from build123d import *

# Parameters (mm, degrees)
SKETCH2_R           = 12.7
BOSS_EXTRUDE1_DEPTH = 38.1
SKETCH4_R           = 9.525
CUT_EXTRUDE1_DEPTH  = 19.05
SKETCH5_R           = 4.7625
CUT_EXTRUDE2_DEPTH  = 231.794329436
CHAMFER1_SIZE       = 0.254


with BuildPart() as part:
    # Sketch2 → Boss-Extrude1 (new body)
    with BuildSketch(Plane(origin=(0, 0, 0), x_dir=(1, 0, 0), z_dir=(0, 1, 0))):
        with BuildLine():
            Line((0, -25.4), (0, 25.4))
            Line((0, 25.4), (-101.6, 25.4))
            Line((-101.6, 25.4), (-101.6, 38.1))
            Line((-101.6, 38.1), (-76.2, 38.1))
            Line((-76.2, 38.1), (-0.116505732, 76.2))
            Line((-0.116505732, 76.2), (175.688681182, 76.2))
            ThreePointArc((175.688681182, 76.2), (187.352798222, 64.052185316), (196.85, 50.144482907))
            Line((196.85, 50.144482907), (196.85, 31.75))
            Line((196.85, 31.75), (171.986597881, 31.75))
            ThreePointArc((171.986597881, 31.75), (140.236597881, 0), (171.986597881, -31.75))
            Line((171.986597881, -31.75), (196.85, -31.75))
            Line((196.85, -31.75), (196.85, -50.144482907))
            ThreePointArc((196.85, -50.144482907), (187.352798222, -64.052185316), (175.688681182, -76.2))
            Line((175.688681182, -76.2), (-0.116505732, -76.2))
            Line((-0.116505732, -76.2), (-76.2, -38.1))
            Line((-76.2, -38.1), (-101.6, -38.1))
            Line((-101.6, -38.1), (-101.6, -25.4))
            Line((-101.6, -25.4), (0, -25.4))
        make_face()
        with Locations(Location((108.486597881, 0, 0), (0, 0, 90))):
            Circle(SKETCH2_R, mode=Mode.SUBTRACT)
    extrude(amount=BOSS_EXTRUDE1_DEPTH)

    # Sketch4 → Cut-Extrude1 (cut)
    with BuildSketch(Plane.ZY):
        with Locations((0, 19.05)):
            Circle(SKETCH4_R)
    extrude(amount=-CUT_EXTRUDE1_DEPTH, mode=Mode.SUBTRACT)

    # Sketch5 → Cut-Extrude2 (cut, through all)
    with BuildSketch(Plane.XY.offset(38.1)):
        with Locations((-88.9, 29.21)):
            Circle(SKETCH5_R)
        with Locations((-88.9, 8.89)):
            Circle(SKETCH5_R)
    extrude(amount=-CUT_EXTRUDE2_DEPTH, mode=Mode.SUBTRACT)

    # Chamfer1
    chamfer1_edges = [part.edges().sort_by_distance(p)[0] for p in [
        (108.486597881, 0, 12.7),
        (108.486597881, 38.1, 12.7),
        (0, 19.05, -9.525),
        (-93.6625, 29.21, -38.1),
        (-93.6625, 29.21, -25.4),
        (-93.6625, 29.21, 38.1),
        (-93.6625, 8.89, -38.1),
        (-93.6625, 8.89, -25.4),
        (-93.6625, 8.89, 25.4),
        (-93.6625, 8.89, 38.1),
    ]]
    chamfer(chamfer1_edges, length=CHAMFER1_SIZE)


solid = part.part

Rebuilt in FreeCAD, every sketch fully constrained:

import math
import FreeCAD as App
import Part
import Sketcher

V = App.Vector
Q = App.Units.Quantity


def edges_at(feature, points):
    """Names of the edges that pass closest to the given points."""
    edges = feature.Shape.Edges
    near = lambda p: min(range(len(edges)), key=lambda i: edges[i].distToShape(Part.Vertex(*p))[0])
    return sorted({f"Edge{near(p) + 1}" for p in points})

doc = App.newDocument("Part")
body = doc.addObject("PartDesign::Body", "Body")

sketch1 = body.newObject("Sketcher::SketchObject", "Sketch")
sketch1.AttachmentSupport = (doc.getObject("XZ_Plane"), [""])
sketch1.MapMode = "FlatFace"
sketch1.addGeometry([
    Part.LineSegment(V(0, -25.4, 0), V(0, 25.4, 0)),
    Part.LineSegment(V(0, 25.4, 0), V(-101.6, 25.4, 0)),
    Part.LineSegment(V(-101.6, 25.4, 0), V(-101.6, 38.1, 0)),
    Part.LineSegment(V(-101.6, 38.1, 0), V(-76.2, 38.1, 0)),
    Part.LineSegment(V(-76.2, 38.1, 0), V(-0.116506, 76.2, 0)),
    Part.LineSegment(V(-0.116506, 76.2, 0), V(175.688681, 76.2, 0)),
    Part.ArcOfCircle(Part.Circle(V(108.486598, 0, 0), V(0, 0, 1), 101.6), math.radians(29.574053), math.radians(48.590378)),
    Part.LineSegment(V(196.85, 50.144483, 0), V(196.85, 31.75, 0)),
    Part.LineSegment(V(196.85, 31.75, 0), V(171.986598, 31.75, 0)),
    Part.ArcOfCircle(Part.Circle(V(171.986598, 0, 0), V(0, 0, 1), 31.75), math.radians(90), math.radians(270)),
    Part.LineSegment(V(171.986598, -31.75, 0), V(196.85, -31.75, 0)),
    Part.LineSegment(V(196.85, -31.75, 0), V(196.85, -50.144483, 0)),
    Part.ArcOfCircle(Part.Circle(V(108.486598, 0, 0), V(0, 0, 1), 101.6), math.radians(-48.590378), math.radians(-29.574053)),
    Part.LineSegment(V(175.688681, -76.2, 0), V(-0.116506, -76.2, 0)),
    Part.LineSegment(V(-0.116506, -76.2, 0), V(-76.2, -38.1, 0)),
    Part.LineSegment(V(-76.2, -38.1, 0), V(-101.6, -38.1, 0)),
    Part.LineSegment(V(-101.6, -38.1, 0), V(-101.6, -25.4, 0)),
    Part.LineSegment(V(-101.6, -25.4, 0), V(0, -25.4, 0)),
    Part.Circle(V(108.486598, 0, 0), V(0, 0, 1), 12.7),
], False)
sketch1.addConstraint([
    Sketcher.Constraint("Coincident", 0, 2, 1, 1),
    Sketcher.Constraint("Coincident", 1, 2, 2, 1),
    Sketcher.Constraint("Coincident", 2, 2, 3, 1),
    Sketcher.Constraint("Coincident", 3, 2, 4, 1),
    Sketcher.Constraint("Coincident", 4, 2, 5, 1),
    Sketcher.Constraint("Coincident", 5, 2, 6, 2),
    Sketcher.Constraint("Coincident", 6, 1, 7, 1),
    Sketcher.Constraint("Coincident", 7, 2, 8, 1),
    Sketcher.Constraint("Tangent", 8, 2, 9, 1),
    Sketcher.Constraint("Tangent", 9, 2, 10, 1),
    Sketcher.Constraint("Coincident", 10, 2, 11, 1),
    Sketcher.Constraint("Coincident", 11, 2, 12, 2),
    Sketcher.Constraint("Coincident", 12, 1, 13, 1),
    Sketcher.Constraint("Coincident", 13, 2, 14, 1),
    Sketcher.Constraint("Coincident", 14, 2, 15, 1),
    Sketcher.Constraint("Coincident", 15, 2, 16, 1),
    Sketcher.Constraint("Coincident", 16, 2, 17, 1),
    Sketcher.Constraint("Coincident", 17, 2, 0, 1),
    Sketcher.Constraint("Vertical", 0),
    Sketcher.Constraint("Horizontal", 1),
    Sketcher.Constraint("Vertical", 2),
    Sketcher.Constraint("Horizontal", 3),
    Sketcher.Constraint("Horizontal", 5),
    Sketcher.Constraint("Vertical", 7),
    Sketcher.Constraint("Horizontal", 8),
    Sketcher.Constraint("Horizontal", 10),
    Sketcher.Constraint("Vertical", 11),
    Sketcher.Constraint("Horizontal", 13),
    Sketcher.Constraint("Horizontal", 15),
    Sketcher.Constraint("Vertical", 16),
    Sketcher.Constraint("Horizontal", 17),
    Sketcher.Constraint("Coincident", 12, 3, 6, 3),
    Sketcher.Constraint("Coincident", 18, 3, 6, 3),
    Sketcher.Constraint("Equal", 6, 12),
    Sketcher.Constraint("Symmetric", 0, 2, 17, 2, -1, 1),
    Sketcher.Constraint("Symmetric", 7, 2, 10, 2, -1),
    Sketcher.Constraint("Symmetric", 5, 2, 12, 1, -1),
    Sketcher.Constraint("Symmetric", 3, 2, 14, 2, -1),
    Sketcher.Constraint("Vertical", 4, 2, 13, 2),
    Sketcher.Constraint("Vertical", 2, 2, 15, 2),
    Sketcher.Constraint("Diameter", 18, Q("1 in")),
    Sketcher.Constraint("Radius", 6, Q("4 in")),
    Sketcher.Constraint("DistanceX", 1, 2, 1, 1, Q("4 in")),
    Sketcher.Constraint("DistanceX", 3, 1, 3, 2, Q("1 in")),
    Sketcher.Constraint("DistanceY", 0, 1, 0, 2, Q("2 in")),
    Sketcher.Constraint("Radius", 9, Q("1.25 in")),
    Sketcher.Constraint("DistanceY", 2, 1, 2, 2, Q("0.5 in")),
    Sketcher.Constraint("DistanceY", -1, 1, 4, 2, Q("3 in")),
    Sketcher.Constraint("DistanceX", 6, 3, 9, 3, Q("2.5 in")),
    Sketcher.Constraint("Distance", 4, Q("3.35 in")),
    Sketcher.Constraint("DistanceX", -1, 1, 6, 1, Q("7.75 in")),
    Sketcher.Constraint("DistanceX", 5, 1, 5, 2, 175.805187),
])
pad1 = body.newObject("PartDesign::Pad", "Pad")
pad1.Profile = sketch1
pad1.Length = Q("1.5 in")
pad1.Reversed = True

sketch2 = body.newObject("Sketcher::SketchObject", "Sketch001")
sketch2.AttachmentSupport = (doc.getObject("YZ_Plane"), [""])
sketch2.MapMode = "FlatFace"
sketch2.addGeometry(Part.Circle(V(19.05, 0, 0), V(0, 0, 1), 9.525), False)
sketch2.addConstraint([
    Sketcher.Constraint("PointOnObject", 0, 3, -1),
    Sketcher.Constraint("Diameter", 0, Q("0.75 in")),
    Sketcher.Constraint("DistanceX", -1, 1, 0, 3, Q("0.75 in")),
])
pocket1 = body.newObject("PartDesign::Pocket", "Pocket")
pocket1.Profile = sketch2
pocket1.Length = Q("0.75 in")
pocket1.Reversed = True

sketch3 = body.newObject("Sketcher::SketchObject", "Sketch002")
sketch3.AttachmentSupport = (doc.getObject("XY_Plane"), [""])
sketch3.MapMode = "FlatFace"
sketch3.AttachmentOffset = App.Placement(V(0, 0, 1.5 * 25.4), App.Rotation())
sketch3.addGeometry([
    Part.Circle(V(-88.9, 29.21, 0), V(0, 0, 1), 4.7625),
    Part.Circle(V(-88.9, 8.89, 0), V(0, 0, 1), 4.7625),
], False)
sketch3.addConstraint([
    Sketcher.Constraint("Equal", 0, 1),
    Sketcher.Constraint("Vertical", 0, 3, 1, 3),
    Sketcher.Constraint("Diameter", 0, Q("0.375 in")),
    Sketcher.Constraint("DistanceX", 0, 3, -1, 1, Q("3.5 in")),
    Sketcher.Constraint("DistanceY", 1, 3, 0, 3, Q("0.8 in")),
    Sketcher.Constraint("DistanceY", -1, 1, 0, 3, Q("1.15 in")),
])
pocket2 = body.newObject("PartDesign::Pocket", "Pocket001")
pocket2.Profile = sketch3
pocket2.Type = "ThroughAll"
doc.recompute()

chamfer = body.newObject("PartDesign::Chamfer", "Chamfer")
chamfer.Base = (pocket2, edges_at(pocket2, [
    (108.487, 0, 12.7),
    (108.487, 38.1, 12.7),
    (0, 19.05, -9.525),
    (-93.662, 29.21, -38.1),
    (-93.662, 29.21, -25.4),
    (-93.662, 29.21, 38.1),
    (-93.662, 8.89, -38.1),
    (-93.662, 8.89, -25.4),
    (-93.662, 8.89, 25.4),
    (-93.662, 8.89, 38.1),
]))
chamfer.Size = Q("0.01 in")

doc.recompute()
